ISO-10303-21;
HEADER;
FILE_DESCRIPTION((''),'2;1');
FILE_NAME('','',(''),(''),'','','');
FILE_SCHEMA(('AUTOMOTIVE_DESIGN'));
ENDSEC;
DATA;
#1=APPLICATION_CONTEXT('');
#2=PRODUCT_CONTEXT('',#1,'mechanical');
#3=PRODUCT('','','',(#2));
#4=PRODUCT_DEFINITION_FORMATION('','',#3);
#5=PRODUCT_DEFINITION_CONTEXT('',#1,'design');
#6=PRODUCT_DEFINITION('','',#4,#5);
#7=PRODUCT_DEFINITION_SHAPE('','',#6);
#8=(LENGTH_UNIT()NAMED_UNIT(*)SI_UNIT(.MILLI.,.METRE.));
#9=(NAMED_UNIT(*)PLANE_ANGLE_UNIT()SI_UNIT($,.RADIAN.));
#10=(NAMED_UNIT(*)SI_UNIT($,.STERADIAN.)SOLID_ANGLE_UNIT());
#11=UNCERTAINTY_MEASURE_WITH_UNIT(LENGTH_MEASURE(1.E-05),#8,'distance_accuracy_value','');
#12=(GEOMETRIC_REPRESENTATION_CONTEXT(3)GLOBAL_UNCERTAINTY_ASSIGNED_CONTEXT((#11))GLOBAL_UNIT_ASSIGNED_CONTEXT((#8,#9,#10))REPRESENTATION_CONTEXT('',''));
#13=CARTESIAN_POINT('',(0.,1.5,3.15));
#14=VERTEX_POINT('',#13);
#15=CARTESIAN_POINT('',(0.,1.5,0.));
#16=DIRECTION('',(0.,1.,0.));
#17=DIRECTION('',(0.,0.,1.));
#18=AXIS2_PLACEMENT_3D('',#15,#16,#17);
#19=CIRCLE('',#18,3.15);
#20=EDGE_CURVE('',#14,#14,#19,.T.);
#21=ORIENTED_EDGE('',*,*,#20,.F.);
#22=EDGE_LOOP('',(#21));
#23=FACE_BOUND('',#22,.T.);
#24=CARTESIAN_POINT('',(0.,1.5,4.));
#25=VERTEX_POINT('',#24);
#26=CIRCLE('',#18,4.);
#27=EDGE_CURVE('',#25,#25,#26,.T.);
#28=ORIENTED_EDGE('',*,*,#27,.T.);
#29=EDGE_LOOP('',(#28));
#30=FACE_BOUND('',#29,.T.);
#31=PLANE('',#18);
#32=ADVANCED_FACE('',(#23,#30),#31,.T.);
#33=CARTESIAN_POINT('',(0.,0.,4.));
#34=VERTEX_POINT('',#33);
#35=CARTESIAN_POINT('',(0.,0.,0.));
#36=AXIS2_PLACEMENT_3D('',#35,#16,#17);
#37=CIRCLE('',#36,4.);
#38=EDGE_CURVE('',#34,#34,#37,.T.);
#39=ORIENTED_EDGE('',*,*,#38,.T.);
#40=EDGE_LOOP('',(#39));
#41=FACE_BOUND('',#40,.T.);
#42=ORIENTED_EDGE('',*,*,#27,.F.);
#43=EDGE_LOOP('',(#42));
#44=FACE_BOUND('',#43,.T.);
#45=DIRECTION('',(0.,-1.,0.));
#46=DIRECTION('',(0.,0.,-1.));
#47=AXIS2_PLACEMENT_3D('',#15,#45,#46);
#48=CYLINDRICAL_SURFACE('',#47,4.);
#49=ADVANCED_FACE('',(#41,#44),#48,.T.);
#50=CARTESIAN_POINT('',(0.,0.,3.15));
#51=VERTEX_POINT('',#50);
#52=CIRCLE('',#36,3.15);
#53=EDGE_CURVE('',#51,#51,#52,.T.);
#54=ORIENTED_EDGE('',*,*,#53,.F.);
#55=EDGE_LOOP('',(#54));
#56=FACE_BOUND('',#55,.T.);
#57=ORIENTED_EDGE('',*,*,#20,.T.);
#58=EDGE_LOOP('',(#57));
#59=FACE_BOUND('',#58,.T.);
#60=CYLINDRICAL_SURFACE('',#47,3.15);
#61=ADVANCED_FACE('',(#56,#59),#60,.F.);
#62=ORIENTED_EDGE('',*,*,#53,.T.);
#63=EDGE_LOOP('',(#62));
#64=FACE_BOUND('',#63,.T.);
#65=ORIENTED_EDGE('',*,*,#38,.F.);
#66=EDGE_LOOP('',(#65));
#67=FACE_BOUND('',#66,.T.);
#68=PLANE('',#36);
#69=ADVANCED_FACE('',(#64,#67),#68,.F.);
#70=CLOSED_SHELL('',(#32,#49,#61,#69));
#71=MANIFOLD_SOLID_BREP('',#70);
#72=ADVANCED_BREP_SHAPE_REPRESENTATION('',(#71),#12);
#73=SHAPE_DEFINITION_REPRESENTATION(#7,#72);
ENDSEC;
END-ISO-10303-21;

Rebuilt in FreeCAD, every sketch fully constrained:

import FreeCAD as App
import Part
import Sketcher
from FreeCAD import Vector

doc = App.newDocument("Part")
body = doc.addObject("PartDesign::Body", "Body")

sketch1 = body.newObject("Sketcher::SketchObject", "Sketch")
sketch1.AttachmentSupport = (doc.getObject("XZ_Plane"), [""])
sketch1.MapMode = "FlatFace"
sketch1.addGeometry(Part.Circle(Vector(0, 0, 0), Vector(0, 0, 1), 4), False)
sketch1.addGeometry(Part.Circle(Vector(0, 0, 0), Vector(0, 0, 1), 3.1), False)
sketch1.addConstraint(Sketcher.Constraint("Coincident", 0, 3, -1, 1))
sketch1.addConstraint(Sketcher.Constraint("Coincident", 1, 3, -1, 1))
sketch1.addConstraint(Sketcher.Constraint("Diameter", 0, 8.0))
sketch1.addConstraint(Sketcher.Constraint("Diameter", 1, 6.3))
pad1 = body.newObject("PartDesign::Pad", "Pad")
pad1.Profile = sketch1
pad1.Length = 1.5
pad1.Reversed = True

doc.recompute()
